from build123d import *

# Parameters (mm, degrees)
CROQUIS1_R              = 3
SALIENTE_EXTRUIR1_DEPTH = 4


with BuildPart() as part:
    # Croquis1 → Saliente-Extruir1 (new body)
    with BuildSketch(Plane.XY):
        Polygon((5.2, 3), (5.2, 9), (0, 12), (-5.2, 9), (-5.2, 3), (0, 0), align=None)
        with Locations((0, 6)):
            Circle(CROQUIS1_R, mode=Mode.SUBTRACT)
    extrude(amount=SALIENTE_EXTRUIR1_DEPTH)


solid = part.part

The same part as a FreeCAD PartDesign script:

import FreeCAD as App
import Part
import Sketcher
from FreeCAD import Vector


def add_polygon(sketch, points):
    """Adds a closed chain of lines whose ends are joined by coincident constraints."""
    first, n = sketch.GeometryCount, len(points)
    for a, b in zip(points, points[1:] + points[:1]):
        sketch.addGeometry(Part.LineSegment(App.Vector(*a, 0), App.Vector(*b, 0)), False)
    for i in range(n):
        sketch.addConstraint(Sketcher.Constraint("Coincident", first + i, 2, first + (i + 1) % n, 1))

doc = App.newDocument("Part")
body = doc.addObject("PartDesign::Body", "Body")

sketch1 = body.newObject("Sketcher::SketchObject", "Sketch")
sketch1.AttachmentSupport = (doc.getObject("XY_Plane"), [""])
sketch1.MapMode = "FlatFace"
add_polygon(sketch1, [(5.2, 3), (5.2, 9), (0, 12), (-5.2, 9), (-5.2, 3), (0, 0)])
sketch1.addGeometry(Part.Circle(Vector(0, 6, 0), Vector(0, 0, 1), 3), False)
sketch1.addConstraint([
    Sketcher.Constraint("Vertical", 0),
    Sketcher.Constraint("Vertical", 3),
    Sketcher.Constraint("Coincident", 4, 2, -1, 1),
    Sketcher.Constraint("Symmetric", 0, 2, 2, 2, -2),
    Sketcher.Constraint("PointOnObject", 6, 3, -2),
    Sketcher.Constraint("PointOnObject", 1, 2, -2),
    Sketcher.Constraint("Parallel", 1, 4),
    Sketcher.Constraint("Parallel", 2, 5),
    Sketcher.Constraint("Diameter", 6, 6.0),
    Sketcher.Constraint("DistanceY", 0, 1, 0, 2, 6.0),
    Sketcher.Constraint("DistanceY", -1, 1, 6, 3, 6.0),
    Sketcher.Constraint("DistanceY", -1, 1, 0, 2, 9.0),
    Sketcher.Constraint("DistanceX", -1, 1, 0, 2, 5.2),
])
pad1 = body.newObject("PartDesign::Pad", "Pad")
pad1.Profile = sketch1
pad1.Length = 4

doc.recompute()
